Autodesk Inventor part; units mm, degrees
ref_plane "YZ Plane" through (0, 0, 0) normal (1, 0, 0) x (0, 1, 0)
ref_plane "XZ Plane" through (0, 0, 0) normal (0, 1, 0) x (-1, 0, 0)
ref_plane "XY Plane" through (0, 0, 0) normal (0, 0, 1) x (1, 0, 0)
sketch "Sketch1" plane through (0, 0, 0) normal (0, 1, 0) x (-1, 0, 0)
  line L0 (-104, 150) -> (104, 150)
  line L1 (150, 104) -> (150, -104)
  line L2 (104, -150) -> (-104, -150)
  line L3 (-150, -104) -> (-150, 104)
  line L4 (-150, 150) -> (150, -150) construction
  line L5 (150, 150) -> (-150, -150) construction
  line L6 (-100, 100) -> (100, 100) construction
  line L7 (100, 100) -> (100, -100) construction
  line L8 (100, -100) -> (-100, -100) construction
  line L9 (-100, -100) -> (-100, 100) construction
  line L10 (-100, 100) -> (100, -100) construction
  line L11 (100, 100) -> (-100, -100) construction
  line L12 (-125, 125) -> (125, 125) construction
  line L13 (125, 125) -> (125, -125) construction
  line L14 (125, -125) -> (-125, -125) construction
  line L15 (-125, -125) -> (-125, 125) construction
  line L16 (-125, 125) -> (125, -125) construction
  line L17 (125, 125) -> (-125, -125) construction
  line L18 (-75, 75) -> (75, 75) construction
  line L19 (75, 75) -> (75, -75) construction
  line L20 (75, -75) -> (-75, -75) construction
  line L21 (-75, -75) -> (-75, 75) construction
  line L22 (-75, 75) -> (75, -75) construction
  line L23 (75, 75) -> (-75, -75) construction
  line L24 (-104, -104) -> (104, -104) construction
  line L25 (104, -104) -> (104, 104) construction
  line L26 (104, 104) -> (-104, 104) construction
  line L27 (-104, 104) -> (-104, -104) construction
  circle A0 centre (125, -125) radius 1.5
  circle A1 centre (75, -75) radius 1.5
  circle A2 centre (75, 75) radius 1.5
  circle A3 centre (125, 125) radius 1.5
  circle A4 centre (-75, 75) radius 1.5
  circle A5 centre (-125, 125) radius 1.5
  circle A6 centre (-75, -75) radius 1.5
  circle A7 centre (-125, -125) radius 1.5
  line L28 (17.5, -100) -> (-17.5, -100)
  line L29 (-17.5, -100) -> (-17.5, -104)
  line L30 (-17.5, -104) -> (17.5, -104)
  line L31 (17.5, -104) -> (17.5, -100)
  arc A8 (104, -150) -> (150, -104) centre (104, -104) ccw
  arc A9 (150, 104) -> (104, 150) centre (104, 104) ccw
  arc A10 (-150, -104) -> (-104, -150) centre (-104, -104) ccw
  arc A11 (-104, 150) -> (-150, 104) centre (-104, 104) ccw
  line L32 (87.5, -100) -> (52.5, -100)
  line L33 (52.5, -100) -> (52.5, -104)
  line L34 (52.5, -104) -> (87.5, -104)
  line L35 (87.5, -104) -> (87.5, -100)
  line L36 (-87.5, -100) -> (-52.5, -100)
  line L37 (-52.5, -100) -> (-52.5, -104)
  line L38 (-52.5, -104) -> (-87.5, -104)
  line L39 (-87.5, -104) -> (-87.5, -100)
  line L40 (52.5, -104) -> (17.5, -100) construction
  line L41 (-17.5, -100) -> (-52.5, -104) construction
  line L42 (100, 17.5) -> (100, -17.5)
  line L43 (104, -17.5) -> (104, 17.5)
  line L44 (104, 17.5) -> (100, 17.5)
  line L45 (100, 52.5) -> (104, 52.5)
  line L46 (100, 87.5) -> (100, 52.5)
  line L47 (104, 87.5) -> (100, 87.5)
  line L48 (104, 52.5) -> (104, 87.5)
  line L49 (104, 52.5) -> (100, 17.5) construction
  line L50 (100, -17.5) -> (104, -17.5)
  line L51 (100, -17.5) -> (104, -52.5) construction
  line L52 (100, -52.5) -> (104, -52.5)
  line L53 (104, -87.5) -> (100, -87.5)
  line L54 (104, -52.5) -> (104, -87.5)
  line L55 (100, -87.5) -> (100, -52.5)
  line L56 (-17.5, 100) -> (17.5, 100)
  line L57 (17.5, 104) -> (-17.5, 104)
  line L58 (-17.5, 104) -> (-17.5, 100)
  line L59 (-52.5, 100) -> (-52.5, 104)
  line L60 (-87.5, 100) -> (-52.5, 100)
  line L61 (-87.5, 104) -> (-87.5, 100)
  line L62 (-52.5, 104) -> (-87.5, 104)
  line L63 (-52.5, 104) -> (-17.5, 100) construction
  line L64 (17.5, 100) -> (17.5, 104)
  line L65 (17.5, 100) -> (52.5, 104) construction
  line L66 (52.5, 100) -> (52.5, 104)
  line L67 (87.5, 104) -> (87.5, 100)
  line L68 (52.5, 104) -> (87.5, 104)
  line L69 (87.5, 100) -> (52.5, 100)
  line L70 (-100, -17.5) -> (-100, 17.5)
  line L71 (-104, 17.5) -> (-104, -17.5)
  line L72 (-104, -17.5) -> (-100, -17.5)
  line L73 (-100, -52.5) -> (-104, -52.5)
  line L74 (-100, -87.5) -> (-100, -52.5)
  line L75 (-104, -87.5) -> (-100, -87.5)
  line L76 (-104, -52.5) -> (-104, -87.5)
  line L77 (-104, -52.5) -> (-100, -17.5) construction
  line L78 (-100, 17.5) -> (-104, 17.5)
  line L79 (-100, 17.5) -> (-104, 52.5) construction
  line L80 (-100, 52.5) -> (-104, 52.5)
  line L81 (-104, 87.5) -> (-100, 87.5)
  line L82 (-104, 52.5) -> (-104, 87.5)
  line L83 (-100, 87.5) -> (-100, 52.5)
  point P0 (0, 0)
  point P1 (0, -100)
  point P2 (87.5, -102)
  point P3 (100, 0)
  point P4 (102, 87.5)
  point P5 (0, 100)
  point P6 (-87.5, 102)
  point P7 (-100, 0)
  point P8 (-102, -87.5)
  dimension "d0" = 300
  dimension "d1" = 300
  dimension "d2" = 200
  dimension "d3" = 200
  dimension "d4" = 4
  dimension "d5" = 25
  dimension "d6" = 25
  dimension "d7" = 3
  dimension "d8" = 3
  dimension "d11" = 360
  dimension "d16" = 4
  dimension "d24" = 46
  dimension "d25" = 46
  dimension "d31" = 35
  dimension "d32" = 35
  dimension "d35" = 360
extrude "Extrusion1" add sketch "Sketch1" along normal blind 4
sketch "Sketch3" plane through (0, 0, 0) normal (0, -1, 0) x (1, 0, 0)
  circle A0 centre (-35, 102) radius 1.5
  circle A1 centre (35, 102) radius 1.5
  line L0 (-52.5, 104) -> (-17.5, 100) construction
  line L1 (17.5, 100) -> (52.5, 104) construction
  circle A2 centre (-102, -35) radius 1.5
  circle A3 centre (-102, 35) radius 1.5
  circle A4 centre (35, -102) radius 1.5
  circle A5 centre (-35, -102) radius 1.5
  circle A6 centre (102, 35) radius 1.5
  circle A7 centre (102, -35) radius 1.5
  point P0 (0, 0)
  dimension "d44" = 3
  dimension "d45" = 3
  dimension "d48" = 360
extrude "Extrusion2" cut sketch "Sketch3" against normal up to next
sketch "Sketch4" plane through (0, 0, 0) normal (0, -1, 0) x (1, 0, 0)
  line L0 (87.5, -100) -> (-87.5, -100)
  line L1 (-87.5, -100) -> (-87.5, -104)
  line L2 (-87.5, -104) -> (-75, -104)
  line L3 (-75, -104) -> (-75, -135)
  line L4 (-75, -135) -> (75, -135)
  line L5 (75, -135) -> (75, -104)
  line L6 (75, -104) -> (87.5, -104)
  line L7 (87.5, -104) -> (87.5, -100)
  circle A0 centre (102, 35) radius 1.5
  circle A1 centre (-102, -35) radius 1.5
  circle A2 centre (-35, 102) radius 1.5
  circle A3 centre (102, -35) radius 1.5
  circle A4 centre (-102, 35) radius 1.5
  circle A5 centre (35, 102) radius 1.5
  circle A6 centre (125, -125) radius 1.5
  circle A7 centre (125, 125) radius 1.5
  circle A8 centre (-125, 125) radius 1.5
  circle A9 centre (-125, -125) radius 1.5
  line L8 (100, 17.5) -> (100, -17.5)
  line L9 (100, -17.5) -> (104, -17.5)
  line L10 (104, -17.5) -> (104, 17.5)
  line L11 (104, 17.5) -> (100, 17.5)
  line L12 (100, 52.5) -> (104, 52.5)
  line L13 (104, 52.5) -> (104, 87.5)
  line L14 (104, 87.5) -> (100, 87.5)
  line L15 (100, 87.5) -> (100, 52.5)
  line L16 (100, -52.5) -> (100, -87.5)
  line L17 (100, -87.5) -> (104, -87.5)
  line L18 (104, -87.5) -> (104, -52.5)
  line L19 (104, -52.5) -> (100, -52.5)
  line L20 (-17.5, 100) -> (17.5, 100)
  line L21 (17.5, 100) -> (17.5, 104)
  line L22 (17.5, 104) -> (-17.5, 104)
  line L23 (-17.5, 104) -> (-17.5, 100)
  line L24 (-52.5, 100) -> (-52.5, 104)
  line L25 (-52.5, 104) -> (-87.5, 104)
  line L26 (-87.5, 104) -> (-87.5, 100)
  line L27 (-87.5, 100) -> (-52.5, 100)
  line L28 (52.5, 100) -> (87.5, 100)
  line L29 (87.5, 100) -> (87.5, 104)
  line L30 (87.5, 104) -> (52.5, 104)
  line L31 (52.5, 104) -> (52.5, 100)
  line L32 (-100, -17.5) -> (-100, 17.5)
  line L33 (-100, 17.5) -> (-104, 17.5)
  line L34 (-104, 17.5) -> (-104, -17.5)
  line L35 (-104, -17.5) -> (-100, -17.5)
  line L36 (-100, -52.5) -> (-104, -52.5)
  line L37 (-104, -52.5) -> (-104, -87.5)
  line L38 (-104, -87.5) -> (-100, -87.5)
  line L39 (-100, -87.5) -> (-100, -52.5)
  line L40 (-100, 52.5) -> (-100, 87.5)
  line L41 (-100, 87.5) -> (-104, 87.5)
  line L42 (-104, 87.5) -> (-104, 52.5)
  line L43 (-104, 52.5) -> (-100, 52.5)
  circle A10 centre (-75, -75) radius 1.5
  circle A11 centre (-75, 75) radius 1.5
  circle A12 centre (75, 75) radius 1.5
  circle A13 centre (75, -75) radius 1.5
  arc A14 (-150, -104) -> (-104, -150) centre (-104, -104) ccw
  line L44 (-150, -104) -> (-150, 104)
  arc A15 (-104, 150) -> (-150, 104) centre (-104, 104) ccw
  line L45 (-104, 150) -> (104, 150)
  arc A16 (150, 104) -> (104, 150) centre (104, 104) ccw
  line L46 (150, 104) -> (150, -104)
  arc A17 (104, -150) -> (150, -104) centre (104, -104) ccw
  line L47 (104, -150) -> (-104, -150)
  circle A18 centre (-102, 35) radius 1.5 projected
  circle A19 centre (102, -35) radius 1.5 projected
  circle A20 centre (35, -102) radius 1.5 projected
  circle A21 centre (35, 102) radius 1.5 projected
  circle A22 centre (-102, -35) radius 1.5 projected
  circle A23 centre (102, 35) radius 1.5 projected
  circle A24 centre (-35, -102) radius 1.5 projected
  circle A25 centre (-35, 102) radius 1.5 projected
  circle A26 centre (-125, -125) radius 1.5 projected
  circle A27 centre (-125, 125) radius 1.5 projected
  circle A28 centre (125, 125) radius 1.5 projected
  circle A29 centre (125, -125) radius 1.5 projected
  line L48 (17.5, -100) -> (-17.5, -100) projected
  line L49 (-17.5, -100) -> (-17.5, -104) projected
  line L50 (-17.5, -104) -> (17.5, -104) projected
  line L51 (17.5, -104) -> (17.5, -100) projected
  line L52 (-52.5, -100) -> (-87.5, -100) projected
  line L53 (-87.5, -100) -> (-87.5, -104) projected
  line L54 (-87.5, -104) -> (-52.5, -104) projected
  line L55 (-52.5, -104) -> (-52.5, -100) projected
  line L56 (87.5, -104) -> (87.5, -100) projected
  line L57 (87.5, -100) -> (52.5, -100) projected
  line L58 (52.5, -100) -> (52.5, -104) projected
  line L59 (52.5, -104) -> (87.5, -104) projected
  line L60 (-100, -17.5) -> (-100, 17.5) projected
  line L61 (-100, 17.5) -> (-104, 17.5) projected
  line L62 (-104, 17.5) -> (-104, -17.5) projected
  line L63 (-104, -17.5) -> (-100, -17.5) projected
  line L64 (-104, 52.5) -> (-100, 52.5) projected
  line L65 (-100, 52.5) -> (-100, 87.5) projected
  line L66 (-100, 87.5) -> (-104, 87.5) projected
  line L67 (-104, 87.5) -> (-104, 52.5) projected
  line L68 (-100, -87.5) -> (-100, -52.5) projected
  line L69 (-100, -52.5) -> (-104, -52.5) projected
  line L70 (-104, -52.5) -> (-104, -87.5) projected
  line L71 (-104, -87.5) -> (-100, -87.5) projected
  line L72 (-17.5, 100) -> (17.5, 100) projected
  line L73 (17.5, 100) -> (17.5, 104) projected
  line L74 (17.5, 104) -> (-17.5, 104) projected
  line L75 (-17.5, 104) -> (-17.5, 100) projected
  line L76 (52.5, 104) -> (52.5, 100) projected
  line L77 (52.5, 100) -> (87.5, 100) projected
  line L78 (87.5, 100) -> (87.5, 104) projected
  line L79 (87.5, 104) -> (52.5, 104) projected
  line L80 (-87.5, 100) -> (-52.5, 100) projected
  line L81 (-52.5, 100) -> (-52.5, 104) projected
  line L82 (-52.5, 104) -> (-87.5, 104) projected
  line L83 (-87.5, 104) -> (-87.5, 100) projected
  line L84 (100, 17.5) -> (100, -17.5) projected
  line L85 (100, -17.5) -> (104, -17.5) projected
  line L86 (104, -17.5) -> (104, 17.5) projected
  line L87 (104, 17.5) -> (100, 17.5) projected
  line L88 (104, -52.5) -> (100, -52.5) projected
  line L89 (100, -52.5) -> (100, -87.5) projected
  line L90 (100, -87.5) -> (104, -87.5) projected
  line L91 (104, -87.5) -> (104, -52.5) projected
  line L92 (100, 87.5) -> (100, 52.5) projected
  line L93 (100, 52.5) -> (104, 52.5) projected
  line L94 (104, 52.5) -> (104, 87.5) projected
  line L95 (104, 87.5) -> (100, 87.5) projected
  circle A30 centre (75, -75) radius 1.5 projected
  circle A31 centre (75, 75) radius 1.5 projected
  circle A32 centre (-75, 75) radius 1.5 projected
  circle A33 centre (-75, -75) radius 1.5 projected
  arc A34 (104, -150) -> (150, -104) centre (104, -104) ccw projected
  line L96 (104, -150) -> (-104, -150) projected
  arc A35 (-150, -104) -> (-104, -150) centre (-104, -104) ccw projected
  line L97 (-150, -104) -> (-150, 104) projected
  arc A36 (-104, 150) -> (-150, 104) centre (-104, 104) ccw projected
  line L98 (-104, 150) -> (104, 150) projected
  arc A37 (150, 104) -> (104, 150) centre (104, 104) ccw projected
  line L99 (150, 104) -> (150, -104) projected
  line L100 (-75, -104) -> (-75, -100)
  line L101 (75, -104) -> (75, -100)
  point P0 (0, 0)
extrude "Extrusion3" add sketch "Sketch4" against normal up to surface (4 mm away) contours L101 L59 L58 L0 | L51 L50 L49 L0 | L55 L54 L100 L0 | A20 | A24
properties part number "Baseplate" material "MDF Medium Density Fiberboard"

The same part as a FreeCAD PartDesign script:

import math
import FreeCAD as App
import Part
import Sketcher

V = App.Vector
Q = App.Units.Quantity


def add_polygon(sketch, points):
    """Adds a closed chain of lines whose ends are joined by coincident constraints."""
    first, n = sketch.GeometryCount, len(points)
    for a, b in zip(points, points[1:] + points[:1]):
        sketch.addGeometry(Part.LineSegment(App.Vector(*a, 0), App.Vector(*b, 0)), False)
    for i in range(n):
        sketch.addConstraint(Sketcher.Constraint("Coincident", first + i, 2, first + (i + 1) % n, 1))

doc = App.newDocument("Part")
params = doc.addObject("Spreadsheet::Sheet", "Params")
for row, (alias, value) in enumerate([
    ("sketch1_diameter", "3 mm"),
    ("sketch1_radius", "46 mm"),
    ("sketch1_width", "35 mm"),
    ("sketch1_width2", "4 mm"),
    ("sketch1_width3", "208 mm"),
    ("pad1_length", "4 mm"),
    ("sketch2_diameter", "3 mm"),
    ("pocket1_length", "4 mm"),
    ("sketch3_diameter", "3 mm"),
    ("sketch3_width", "35 mm"),
    ("sketch3_height", "4 mm"),
    ("sketch3_width2", "22.5 mm"),
    ("pad2_length", "4 mm"),
], start=1):
    params.set(f"A{row}", alias)
    params.set(f"B{row}", "=" + value)
    params.setAlias(f"B{row}", alias)

body = doc.addObject("PartDesign::Body", "Body")

sketch1 = body.newObject("Sketcher::SketchObject", "Sketch")
sketch1.AttachmentSupport = (doc.getObject("XZ_Plane"), [""])
sketch1.MapMode = "FlatFace"
sketch1.addGeometry(Part.LineSegment(V(-104, 150, 0), V(104, 150, 0)), False)
sketch1.addGeometry(Part.ArcOfCircle(Part.Circle(V(104, 104, 0), V(0, 0, 1), 46), math.radians(0), math.radians(90)), False)
sketch1.addGeometry(Part.LineSegment(V(150, 104, 0), V(150, -104, 0)), False)
sketch1.addGeometry(Part.ArcOfCircle(Part.Circle(V(104, -104, 0), V(0, 0, 1), 46), math.radians(-90), math.radians(0)), False)
sketch1.addGeometry(Part.LineSegment(V(104, -150, 0), V(-104, -150, 0)), False)
sketch1.addGeometry(Part.ArcOfCircle(Part.Circle(V(-104, -104, 0), V(0, 0, 1), 46), math.radians(180), math.radians(270)), False)
sketch1.addGeometry(Part.LineSegment(V(-150, -104, 0), V(-150, 104, 0)), False)
sketch1.addGeometry(Part.ArcOfCircle(Part.Circle(V(-104, 104, 0), V(0, 0, 1), 46), math.radians(90), math.radians(180)), False)
sketch1.addGeometry(Part.Circle(V(125, -125, 0), V(0, 0, 1), 1.5), False)
add_polygon(sketch1, [(87.5, -104), (87.5, -100), (52.5, -100), (52.5, -104)])
add_polygon(sketch1, [(104, -52.5), (100, -52.5), (100, -87.5), (104, -87.5)])
sketch1.addGeometry(Part.Circle(V(75, -75, 0), V(0, 0, 1), 1.5), False)
add_polygon(sketch1, [(17.5, -100), (-17.5, -100), (-17.5, -104), (17.5, -104)])
add_polygon(sketch1, [(-52.5, -100), (-87.5, -100), (-87.5, -104), (-52.5, -104)])
sketch1.addGeometry(Part.Circle(V(-125, -125, 0), V(0, 0, 1), 1.5), False)
sketch1.addGeometry(Part.Circle(V(-75, -75, 0), V(0, 0, 1), 1.5), False)
add_polygon(sketch1, [(-100, -87.5), (-100, -52.5), (-104, -52.5), (-104, -87.5)])
add_polygon(sketch1, [(100, 17.5), (100, -17.5), (104, -17.5), (104, 17.5)])
add_polygon(sketch1, [(100, 87.5), (100, 52.5), (104, 52.5), (104, 87.5)])
sketch1.addGeometry(Part.Circle(V(125, 125, 0), V(0, 0, 1), 1.5), False)
sketch1.addGeometry(Part.Circle(V(75, 75, 0), V(0, 0, 1), 1.5), False)
add_polygon(sketch1, [(52.5, 104), (52.5, 100), (87.5, 100), (87.5, 104)])
add_polygon(sketch1, [(-100, -17.5), (-100, 17.5), (-104, 17.5), (-104, -17.5)])
add_polygon(sketch1, [(-104, 52.5), (-100, 52.5), (-100, 87.5), (-104, 87.5)])
add_polygon(sketch1, [(-17.5, 100), (17.5, 100), (17.5, 104), (-17.5, 104)])
add_polygon(sketch1, [(-87.5, 100), (-52.5, 100), (-52.5, 104), (-87.5, 104)])
sketch1.addGeometry(Part.Circle(V(-75, 75, 0), V(0, 0, 1), 1.5), False)
sketch1.addGeometry(Part.Circle(V(-125, 125, 0), V(0, 0, 1), 1.5), False)
sketch1.addConstraint([
    Sketcher.Constraint("Tangent", 0, 2, 1, 2),
    Sketcher.Constraint("Tangent", 1, 1, 2, 1),
    Sketcher.Constraint("Tangent", 2, 2, 3, 2),
    Sketcher.Constraint("Tangent", 3, 1, 4, 1),
    Sketcher.Constraint("Tangent", 4, 2, 5, 2),
    Sketcher.Constraint("Tangent", 5, 1, 6, 1),
    Sketcher.Constraint("Tangent", 6, 2, 7, 2),
    Sketcher.Constraint("Tangent", 7, 1, 0, 1),
    Sketcher.Constraint("Horizontal", 0),
    Sketcher.Constraint("Vertical", 2),
    Sketcher.Constraint("Horizontal", 4),
    Sketcher.Constraint("Vertical", 6),
    Sketcher.Constraint("Vertical", 9),
    Sketcher.Constraint("Horizontal", 10),
    Sketcher.Constraint("Vertical", 11),
    Sketcher.Constraint("Horizontal", 12),
    Sketcher.Constraint("Horizontal", 13),
    Sketcher.Constraint("Vertical", 14),
    Sketcher.Constraint("Horizontal", 15),
    Sketcher.Constraint("Vertical", 16),
    Sketcher.Constraint("Horizontal", 18),
    Sketcher.Constraint("Vertical", 19),
    Sketcher.Constraint("Horizontal", 20),
    Sketcher.Constraint("Vertical", 21),
    Sketcher.Constraint("Horizontal", 22),
    Sketcher.Constraint("Vertical", 23),
    Sketcher.Constraint("Horizontal", 24),
    Sketcher.Constraint("Vertical", 25),
    Sketcher.Constraint("Vertical", 28),
    Sketcher.Constraint("Horizontal", 29),
    Sketcher.Constraint("Vertical", 30),
    Sketcher.Constraint("Horizontal", 31),
    Sketcher.Constraint("Vertical", 32),
    Sketcher.Constraint("Horizontal", 33),
    Sketcher.Constraint("Vertical", 34),
    Sketcher.Constraint("Horizontal", 35),
    Sketcher.Constraint("Vertical", 36),
    Sketcher.Constraint("Horizontal", 37),
    Sketcher.Constraint("Vertical", 38),
    Sketcher.Constraint("Horizontal", 39),
    Sketcher.Constraint("Vertical", 42),
    Sketcher.Constraint("Horizontal", 43),
    Sketcher.Constraint("Vertical", 44),
    Sketcher.Constraint("Horizontal", 45),
    Sketcher.Constraint("Vertical", 46),
    Sketcher.Constraint("Horizontal", 47),
    Sketcher.Constraint("Vertical", 48),
    Sketcher.Constraint("Horizontal", 49),
    Sketcher.Constraint("Horizontal", 50),
    Sketcher.Constraint("Vertical", 51),
    Sketcher.Constraint("Horizontal", 52),
    Sketcher.Constraint("Vertical", 53),
    Sketcher.Constraint("Horizontal", 54),
    Sketcher.Constraint("Vertical", 55),
    Sketcher.Constraint("Horizontal", 56),
    Sketcher.Constraint("Vertical", 57),
    Sketcher.Constraint("Horizontal", 58),
    Sketcher.Constraint("Vertical", 59),
    Sketcher.Constraint("Horizontal", 60),
    Sketcher.Constraint("Vertical", 61),
    Sketcher.Constraint("Equal", 1, 3),
    Sketcher.Constraint("Equal", 3, 5),
    Sketcher.Constraint("Equal", 5, 7),
    Sketcher.Constraint("Equal", 8, 17),
    Sketcher.Constraint("Equal", 17, 26),
    Sketcher.Constraint("Equal", 26, 27),
    Sketcher.Constraint("Equal", 27, 40),
    Sketcher.Constraint("Equal", 40, 41),
    Sketcher.Constraint("Equal", 41, 62),
    Sketcher.Constraint("Equal", 62, 63),
    Sketcher.Constraint("Symmetric", 1, 3, 5, 3, -1, 1),
    Sketcher.Constraint("Symmetric", 26, 3, 40, 3, -1, 1),
    Sketcher.Constraint("Symmetric", 27, 3, 41, 3, -1, 1),
    Sketcher.Constraint("Symmetric", 17, 3, 62, 3, -1, 1),
    Sketcher.Constraint("Symmetric", 8, 3, 63, 3, -1, 1),
    Sketcher.Constraint("Symmetric", 28, 2, 36, 2, -1, 1),
    Sketcher.Constraint("Symmetric", 30, 2, 38, 2, -1, 1),
    Sketcher.Constraint("Symmetric", 25, 2, 42, 2, -1, 1),
    Sketcher.Constraint("Symmetric", 23, 2, 44, 2, -1, 1),
    Sketcher.Constraint("Symmetric", 32, 2, 46, 2, -1, 1),
    Sketcher.Constraint("Symmetric", 34, 2, 48, 2, -1, 1),
    Sketcher.Constraint("Symmetric", 13, 2, 50, 2, -1, 1),
    Sketcher.Constraint("Symmetric", 15, 2, 52, 2, -1, 1),
    Sketcher.Constraint("Symmetric", 18, 2, 54, 2, -1, 1),
    Sketcher.Constraint("Symmetric", 20, 2, 56, 2, -1, 1),
    Sketcher.Constraint("Symmetric", 10, 2, 58, 2, -1, 1),
    Sketcher.Constraint("Symmetric", 12, 2, 60, 2, -1, 1),
    Sketcher.Constraint("Symmetric", 8, 3, 26, 3, -2),
    Sketcher.Constraint("Symmetric", 17, 3, 27, 3, -2),
    Sketcher.Constraint("Symmetric", 9, 2, 22, 2, -2),
    Sketcher.Constraint("Symmetric", 11, 2, 24, 2, -2),
    Sketcher.Constraint("Symmetric", 13, 2, 28, 2, -2),
    Sketcher.Constraint("Symmetric", 15, 2, 30, 2, -2),
    Sketcher.Constraint("Horizontal", 5, 1, 11, 2),
    Sketcher.Constraint("Horizontal", 10, 2, 18, 2),
    Sketcher.Constraint("Horizontal", 12, 2, 19, 2),
    Sketcher.Constraint("Horizontal", 35, 2, 46, 2),
    Sketcher.Constraint("Vertical", 3, 1, 15, 2),
    Sketcher.Constraint("Vertical", 14, 2, 32, 2),
    Sketcher.Constraint("Vertical", 16, 2, 33, 2),
    Sketcher.Constraint("Vertical", 21, 2, 54, 2),
    Sketcher.Constraint("Equal", 12, 18),
    Sketcher.Constraint("Equal", 4, 2),
    Sketcher.Constraint("Equal", 52, 9),
    Sketcher.Constraint("Equal", 60, 14),
    Sketcher.Constraint("Equal", 30, 32),
    Sketcher.Constraint("Diameter", 8, Q("3 mm")),
    Sketcher.Constraint("Radius", 1, Q("46 mm")),
    Sketcher.Constraint("DistanceX", 10, 2, 10, 1, Q("35 mm")),
    Sketcher.Constraint("DistanceX", 13, 2, 13, 1, Q("4 mm")),
    Sketcher.Constraint("DistanceX", 0, 1, 0, 2, Q("208 mm")),
    Sketcher.Constraint("DistanceX", -1, 1, 8, 3, Q("125 mm")),
    Sketcher.Constraint("DistanceY", 8, 3, -1, 1, Q("125 mm")),
    Sketcher.Constraint("DistanceX", -1, 1, 17, 3, Q("75 mm")),
    Sketcher.Constraint("DistanceY", 17, 3, -1, 1, Q("75 mm")),
    Sketcher.Constraint("DistanceX", -1, 1, 9, 2, Q("87.5 mm")),
    Sketcher.Constraint("DistanceY", 13, 2, -1, 1, Q("52.5 mm")),
])
sketch1.setExpression("Constraints[154]", "Params.sketch1_diameter")
sketch1.setExpression("Constraints[155]", "Params.sketch1_radius")
sketch1.setExpression("Constraints[156]", "Params.sketch1_width")
sketch1.setExpression("Constraints[157]", "Params.sketch1_width2")
sketch1.setExpression("Constraints[158]", "Params.sketch1_width3")
pad1 = body.newObject("PartDesign::Pad", "Pad")
pad1.Profile = sketch1
pad1.setExpression("Length", "Params.pad1_length")
pad1.Reversed = True

sketch2 = body.newObject("Sketcher::SketchObject", "Sketch001")
sketch2.AttachmentSupport = (doc.getObject("XZ_Plane"), [""])
sketch2.MapMode = "FlatFace"
sketch2.addGeometry([
    Part.Circle(V(-35, 102, 0), V(0, 0, 1), 1.5),
    Part.Circle(V(35, 102, 0), V(0, 0, 1), 1.5),
    Part.Circle(V(-102, -35, 0), V(0, 0, 1), 1.5),
    Part.Circle(V(-102, 35, 0), V(0, 0, 1), 1.5),
    Part.Circle(V(35, -102, 0), V(0, 0, 1), 1.5),
    Part.Circle(V(-35, -102, 0), V(0, 0, 1), 1.5),
    Part.Circle(V(102, 35, 0), V(0, 0, 1), 1.5),
    Part.Circle(V(102, -35, 0), V(0, 0, 1), 1.5),
], False)
sketch2.addConstraint([
    Sketcher.Constraint("Equal", 0, 1),
    Sketcher.Constraint("Equal", 1, 2),
    Sketcher.Constraint("Equal", 2, 3),
    Sketcher.Constraint("Equal", 3, 4),
    Sketcher.Constraint("Equal", 4, 5),
    Sketcher.Constraint("Equal", 5, 6),
    Sketcher.Constraint("Equal", 6, 7),
    Sketcher.Constraint("Symmetric", 0, 3, 4, 3, -1, 1),
    Sketcher.Constraint("Symmetric", 1, 3, 5, 3, -1, 1),
    Sketcher.Constraint("Symmetric", 2, 3, 6, 3, -1, 1),
    Sketcher.Constraint("Symmetric", 3, 3, 7, 3, -1, 1),
    Sketcher.Constraint("Symmetric", 0, 3, 1, 3, -2),
    Sketcher.Constraint("Symmetric", 3, 3, 6, 3, -2),
    Sketcher.Constraint("Diameter", 0, Q("3 mm")),
    Sketcher.Constraint("DistanceX", 0, 3, -1, 1, Q("35 mm")),
    Sketcher.Constraint("DistanceY", -1, 1, 0, 3, Q("102 mm")),
    Sketcher.Constraint("DistanceX", 2, 3, -1, 1, Q("102 mm")),
    Sketcher.Constraint("DistanceY", 2, 3, -1, 1, Q("35 mm")),
])
sketch2.setExpression("Constraints[13]", "Params.sketch2_diameter")
pocket1 = body.newObject("PartDesign::Pocket", "Pocket")
pocket1.Profile = sketch2
pocket1.setExpression("Length", "Params.pocket1_length")

sketch3 = body.newObject("Sketcher::SketchObject", "Sketch002")
sketch3.AttachmentSupport = (doc.getObject("XZ_Plane"), [""])
sketch3.MapMode = "FlatFace"
add_polygon(sketch3, [(75, -104), (75, -100), (52.5, -100), (52.5, -104)])
add_polygon(sketch3, [(17.5, -104), (17.5, -100), (-17.5, -100), (-17.5, -104)])
add_polygon(sketch3, [(-52.5, -104), (-52.5, -100), (-75, -100), (-75, -104)])
sketch3.addGeometry(Part.Circle(V(35, -102, 0), V(0, 0, 1), 1.5), False)
sketch3.addGeometry(Part.Circle(V(-35, -102, 0), V(0, 0, 1), 1.5), False)
sketch3.addConstraint([
    Sketcher.Constraint("Vertical", 0),
    Sketcher.Constraint("Horizontal", 1),
    Sketcher.Constraint("Vertical", 2),
    Sketcher.Constraint("Horizontal", 3),
    Sketcher.Constraint("Vertical", 4),
    Sketcher.Constraint("Horizontal", 5),
    Sketcher.Constraint("Vertical", 6),
    Sketcher.Constraint("Horizontal", 7),
    Sketcher.Constraint("Vertical", 8),
    Sketcher.Constraint("Horizontal", 9),
    Sketcher.Constraint("Vertical", 10),
    Sketcher.Constraint("Horizontal", 11),
    Sketcher.Constraint("Equal", 12, 13),
    Sketcher.Constraint("Symmetric", 12, 3, 13, 3, -2),
    Sketcher.Constraint("Symmetric", 1, 2, 8, 2, -2),
    Sketcher.Constraint("Symmetric", 3, 2, 10, 2, -2),
    Sketcher.Constraint("Horizontal", 1, 2, 4, 2),
    Sketcher.Constraint("Horizontal", 3, 2, 6, 2),
    Sketcher.Constraint("Diameter", 12, Q("3 mm")),
    Sketcher.Constraint("DistanceX", 5, 2, 5, 1, Q("35 mm")),
    Sketcher.Constraint("DistanceY", 0, 1, 0, 2, Q("4 mm")),
    Sketcher.Constraint("DistanceX", 1, 2, 1, 1, Q("22.5 mm")),
    Sketcher.Constraint("DistanceX", -1, 1, 12, 3, Q("35 mm")),
    Sketcher.Constraint("DistanceY", 12, 3, -1, 1, Q("102 mm")),
    Sketcher.Constraint("DistanceX", -1, 1, 0, 2, Q("75 mm")),
    Sketcher.Constraint("DistanceY", 0, 2, -1, 1, Q("100 mm")),
    Sketcher.Constraint("DistanceX", 4, 2, 1, 2, Q("35 mm")),
])
sketch3.setExpression("Constraints[30]", "Params.sketch3_diameter")
sketch3.setExpression("Constraints[31]", "Params.sketch3_width")
sketch3.setExpression("Constraints[32]", "Params.sketch3_height")
sketch3.setExpression("Constraints[33]", "Params.sketch3_width2")
pad2 = body.newObject("PartDesign::Pad", "Pad001")
pad2.Profile = sketch3
pad2.setExpression("Length", "Params.pad2_length")
pad2.Reversed = True

doc.recompute()
